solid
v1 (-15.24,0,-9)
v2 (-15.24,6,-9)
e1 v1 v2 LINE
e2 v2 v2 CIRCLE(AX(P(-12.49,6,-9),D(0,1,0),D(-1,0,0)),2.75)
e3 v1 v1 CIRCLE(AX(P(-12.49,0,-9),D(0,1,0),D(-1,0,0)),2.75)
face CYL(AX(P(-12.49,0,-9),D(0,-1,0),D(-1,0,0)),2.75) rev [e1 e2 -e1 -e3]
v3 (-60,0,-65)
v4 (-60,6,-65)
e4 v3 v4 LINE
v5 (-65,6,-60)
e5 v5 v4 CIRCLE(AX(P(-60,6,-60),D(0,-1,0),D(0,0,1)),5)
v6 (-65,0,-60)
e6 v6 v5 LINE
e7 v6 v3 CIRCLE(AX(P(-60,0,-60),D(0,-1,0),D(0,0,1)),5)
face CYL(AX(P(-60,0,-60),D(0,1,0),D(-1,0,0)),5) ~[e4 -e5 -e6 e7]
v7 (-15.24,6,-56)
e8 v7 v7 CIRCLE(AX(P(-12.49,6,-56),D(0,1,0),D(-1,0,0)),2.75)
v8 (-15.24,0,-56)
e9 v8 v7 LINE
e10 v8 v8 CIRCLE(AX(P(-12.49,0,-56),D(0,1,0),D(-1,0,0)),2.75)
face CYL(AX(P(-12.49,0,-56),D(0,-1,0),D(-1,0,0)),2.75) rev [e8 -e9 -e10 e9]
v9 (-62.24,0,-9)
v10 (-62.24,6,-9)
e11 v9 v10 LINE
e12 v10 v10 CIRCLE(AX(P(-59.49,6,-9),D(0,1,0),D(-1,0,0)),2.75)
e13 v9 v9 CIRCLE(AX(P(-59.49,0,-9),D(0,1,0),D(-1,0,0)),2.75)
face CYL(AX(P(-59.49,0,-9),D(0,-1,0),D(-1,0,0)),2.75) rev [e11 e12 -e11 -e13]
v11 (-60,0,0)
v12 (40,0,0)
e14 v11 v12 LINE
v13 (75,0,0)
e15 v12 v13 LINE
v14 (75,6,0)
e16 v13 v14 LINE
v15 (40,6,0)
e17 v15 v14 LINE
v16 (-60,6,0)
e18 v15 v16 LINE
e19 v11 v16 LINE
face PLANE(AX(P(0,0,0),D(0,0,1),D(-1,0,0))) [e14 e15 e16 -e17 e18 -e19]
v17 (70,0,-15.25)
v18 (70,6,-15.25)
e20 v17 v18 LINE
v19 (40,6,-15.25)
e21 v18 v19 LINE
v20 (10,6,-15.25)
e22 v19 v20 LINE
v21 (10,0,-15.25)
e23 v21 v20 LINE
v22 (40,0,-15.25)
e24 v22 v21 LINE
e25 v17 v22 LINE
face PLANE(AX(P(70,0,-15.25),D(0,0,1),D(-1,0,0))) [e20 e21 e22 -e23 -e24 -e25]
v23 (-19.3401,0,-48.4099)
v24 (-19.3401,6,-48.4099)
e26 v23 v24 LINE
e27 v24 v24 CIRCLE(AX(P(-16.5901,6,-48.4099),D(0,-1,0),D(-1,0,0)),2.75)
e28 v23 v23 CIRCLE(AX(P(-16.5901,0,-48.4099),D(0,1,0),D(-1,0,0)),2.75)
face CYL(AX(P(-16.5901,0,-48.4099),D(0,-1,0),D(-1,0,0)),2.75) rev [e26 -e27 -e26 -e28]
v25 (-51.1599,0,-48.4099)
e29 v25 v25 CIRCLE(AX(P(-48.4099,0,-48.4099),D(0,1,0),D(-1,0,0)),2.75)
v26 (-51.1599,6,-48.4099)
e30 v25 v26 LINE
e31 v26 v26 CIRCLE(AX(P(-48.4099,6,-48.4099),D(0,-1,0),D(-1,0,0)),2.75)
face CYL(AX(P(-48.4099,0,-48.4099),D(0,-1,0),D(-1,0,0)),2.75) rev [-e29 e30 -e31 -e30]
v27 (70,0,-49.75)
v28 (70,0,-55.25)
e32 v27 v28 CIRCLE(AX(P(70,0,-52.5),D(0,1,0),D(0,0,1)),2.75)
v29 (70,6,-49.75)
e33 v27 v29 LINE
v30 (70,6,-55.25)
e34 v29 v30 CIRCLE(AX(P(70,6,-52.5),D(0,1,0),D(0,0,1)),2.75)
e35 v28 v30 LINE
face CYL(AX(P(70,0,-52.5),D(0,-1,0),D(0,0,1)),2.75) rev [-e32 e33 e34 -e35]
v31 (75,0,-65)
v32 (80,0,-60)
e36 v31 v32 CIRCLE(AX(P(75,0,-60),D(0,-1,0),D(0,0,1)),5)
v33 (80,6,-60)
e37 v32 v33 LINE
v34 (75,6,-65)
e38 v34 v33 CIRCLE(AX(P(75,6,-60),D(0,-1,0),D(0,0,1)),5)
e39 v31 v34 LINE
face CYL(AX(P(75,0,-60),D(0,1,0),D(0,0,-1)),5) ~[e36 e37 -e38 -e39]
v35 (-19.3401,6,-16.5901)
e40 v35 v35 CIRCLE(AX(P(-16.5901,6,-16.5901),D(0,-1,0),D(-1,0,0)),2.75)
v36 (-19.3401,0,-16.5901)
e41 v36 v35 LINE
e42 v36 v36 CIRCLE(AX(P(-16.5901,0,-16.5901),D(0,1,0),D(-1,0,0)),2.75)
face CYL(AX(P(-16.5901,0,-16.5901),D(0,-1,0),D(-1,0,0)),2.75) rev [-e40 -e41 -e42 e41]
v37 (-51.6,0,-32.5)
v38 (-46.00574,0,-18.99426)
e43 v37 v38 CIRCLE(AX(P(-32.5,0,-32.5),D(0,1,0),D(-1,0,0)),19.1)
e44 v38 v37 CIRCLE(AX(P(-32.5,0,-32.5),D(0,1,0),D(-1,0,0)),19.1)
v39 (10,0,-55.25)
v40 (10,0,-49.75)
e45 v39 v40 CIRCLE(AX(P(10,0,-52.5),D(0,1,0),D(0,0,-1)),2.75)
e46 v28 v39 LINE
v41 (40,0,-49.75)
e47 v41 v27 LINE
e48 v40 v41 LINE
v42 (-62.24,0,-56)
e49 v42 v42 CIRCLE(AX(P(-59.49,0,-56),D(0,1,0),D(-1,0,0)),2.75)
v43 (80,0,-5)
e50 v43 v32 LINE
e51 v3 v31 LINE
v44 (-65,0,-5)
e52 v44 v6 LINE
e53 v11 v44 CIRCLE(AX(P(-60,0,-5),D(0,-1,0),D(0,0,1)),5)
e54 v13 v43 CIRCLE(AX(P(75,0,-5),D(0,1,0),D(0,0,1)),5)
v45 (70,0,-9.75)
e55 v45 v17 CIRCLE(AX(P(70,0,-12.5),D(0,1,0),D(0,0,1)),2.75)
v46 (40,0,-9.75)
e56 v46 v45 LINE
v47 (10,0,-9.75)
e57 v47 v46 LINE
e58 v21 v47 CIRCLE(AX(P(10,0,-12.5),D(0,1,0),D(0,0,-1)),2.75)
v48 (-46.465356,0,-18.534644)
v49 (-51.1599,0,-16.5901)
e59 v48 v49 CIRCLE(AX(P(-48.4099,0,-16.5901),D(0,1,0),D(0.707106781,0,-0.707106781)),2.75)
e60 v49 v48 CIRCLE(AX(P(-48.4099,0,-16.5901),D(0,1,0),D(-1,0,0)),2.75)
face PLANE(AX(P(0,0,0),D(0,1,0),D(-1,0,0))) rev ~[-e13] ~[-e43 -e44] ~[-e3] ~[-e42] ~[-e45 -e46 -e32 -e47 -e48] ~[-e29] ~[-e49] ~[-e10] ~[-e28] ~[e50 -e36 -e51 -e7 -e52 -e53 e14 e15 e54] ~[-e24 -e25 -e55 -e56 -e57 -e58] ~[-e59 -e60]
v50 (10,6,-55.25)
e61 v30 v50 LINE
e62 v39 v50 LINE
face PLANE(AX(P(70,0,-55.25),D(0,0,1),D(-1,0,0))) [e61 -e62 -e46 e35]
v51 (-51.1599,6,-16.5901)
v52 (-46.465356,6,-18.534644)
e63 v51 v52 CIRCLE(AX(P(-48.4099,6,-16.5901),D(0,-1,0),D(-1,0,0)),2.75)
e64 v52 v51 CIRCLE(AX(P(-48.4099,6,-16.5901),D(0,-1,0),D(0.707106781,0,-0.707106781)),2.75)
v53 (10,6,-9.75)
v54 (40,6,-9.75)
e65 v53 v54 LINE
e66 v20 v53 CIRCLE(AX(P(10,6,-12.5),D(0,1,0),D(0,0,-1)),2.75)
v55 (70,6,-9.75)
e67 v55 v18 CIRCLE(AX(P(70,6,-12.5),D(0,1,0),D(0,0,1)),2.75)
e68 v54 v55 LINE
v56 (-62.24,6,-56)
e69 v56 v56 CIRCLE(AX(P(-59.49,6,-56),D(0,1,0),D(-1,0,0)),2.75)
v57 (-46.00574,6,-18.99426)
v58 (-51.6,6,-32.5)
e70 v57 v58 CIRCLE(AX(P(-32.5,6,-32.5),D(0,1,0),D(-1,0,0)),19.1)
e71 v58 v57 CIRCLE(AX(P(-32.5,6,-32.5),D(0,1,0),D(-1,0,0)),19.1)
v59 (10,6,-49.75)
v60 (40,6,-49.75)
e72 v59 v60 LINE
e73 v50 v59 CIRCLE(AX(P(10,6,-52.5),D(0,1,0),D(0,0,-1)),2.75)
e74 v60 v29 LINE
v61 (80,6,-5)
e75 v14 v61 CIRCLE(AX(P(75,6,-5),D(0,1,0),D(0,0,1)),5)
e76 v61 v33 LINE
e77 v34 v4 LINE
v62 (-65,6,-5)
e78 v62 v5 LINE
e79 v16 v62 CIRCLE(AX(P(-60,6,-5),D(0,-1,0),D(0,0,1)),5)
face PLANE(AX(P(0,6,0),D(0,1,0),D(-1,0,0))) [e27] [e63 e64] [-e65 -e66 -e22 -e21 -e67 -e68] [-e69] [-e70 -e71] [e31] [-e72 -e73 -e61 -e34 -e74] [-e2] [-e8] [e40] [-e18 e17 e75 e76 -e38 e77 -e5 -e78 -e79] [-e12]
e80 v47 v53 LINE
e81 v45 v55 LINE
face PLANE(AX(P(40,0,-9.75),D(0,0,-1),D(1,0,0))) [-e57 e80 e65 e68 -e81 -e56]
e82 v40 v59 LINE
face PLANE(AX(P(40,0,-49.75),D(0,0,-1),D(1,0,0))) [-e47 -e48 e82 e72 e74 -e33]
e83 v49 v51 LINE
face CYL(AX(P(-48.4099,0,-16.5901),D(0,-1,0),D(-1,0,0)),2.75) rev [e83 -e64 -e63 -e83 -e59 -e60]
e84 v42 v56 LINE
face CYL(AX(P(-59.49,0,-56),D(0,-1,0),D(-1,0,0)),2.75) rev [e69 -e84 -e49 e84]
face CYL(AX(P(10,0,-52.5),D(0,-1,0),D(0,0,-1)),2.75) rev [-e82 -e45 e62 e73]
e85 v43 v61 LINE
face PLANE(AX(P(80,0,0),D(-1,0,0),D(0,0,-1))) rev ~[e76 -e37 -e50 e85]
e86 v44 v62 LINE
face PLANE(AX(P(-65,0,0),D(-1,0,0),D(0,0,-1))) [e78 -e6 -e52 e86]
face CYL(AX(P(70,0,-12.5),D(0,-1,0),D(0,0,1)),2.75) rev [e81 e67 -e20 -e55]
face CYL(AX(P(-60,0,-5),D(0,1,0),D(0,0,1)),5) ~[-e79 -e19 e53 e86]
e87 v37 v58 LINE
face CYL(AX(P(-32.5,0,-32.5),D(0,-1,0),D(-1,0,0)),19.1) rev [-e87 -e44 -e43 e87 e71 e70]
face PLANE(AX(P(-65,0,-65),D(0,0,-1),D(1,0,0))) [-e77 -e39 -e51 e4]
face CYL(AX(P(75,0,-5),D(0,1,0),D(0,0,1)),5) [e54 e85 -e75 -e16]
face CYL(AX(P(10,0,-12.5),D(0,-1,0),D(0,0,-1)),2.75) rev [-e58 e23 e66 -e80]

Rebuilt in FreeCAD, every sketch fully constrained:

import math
import FreeCAD as App
import Part
import Sketcher
from FreeCAD import Vector
Q = App.Units.Quantity


def edges_at(feature, points):
    """Names of the edges that pass closest to the given points."""
    edges = feature.Shape.Edges
    near = lambda p: min(range(len(edges)), key=lambda i: edges[i].distToShape(Part.Vertex(*p))[0])
    return sorted({f"Edge{near(p) + 1}" for p in points})

doc = App.newDocument("Part")
body = doc.addObject("PartDesign::Body", "Body")

# Sketch on XZ plane
sketch1 = doc.addObject("Sketcher::SketchObject", "Sketch")
body.addObject(sketch1)
sketch1.AttachmentSupport = (doc.XZ_Plane, [""])
sketch1.MapMode = "FlatFace"
sketch1.addGeometry([
    Part.LineSegment(Vector(-65, 0, 0), Vector(40, 0, 0)),  # 0
    Part.LineSegment(Vector(40, 0, 0), Vector(80, 0, 0)),  # 1
    Part.LineSegment(Vector(80, 0, 0), Vector(80, -65, 0)),  # 2
    Part.LineSegment(Vector(80, -65, 0), Vector(-65, -65, 0)),  # 3
    Part.LineSegment(Vector(-65, -65, 0), Vector(-65, 0, 0)),  # 4
    Part.Circle(Vector(-12.5, -56, 0), Vector(0, 0, 1), 2.8),  # 5
    Part.Circle(Vector(-59.5, -56, 0), Vector(0, 0, 1), 2.8),  # 6
    Part.Circle(Vector(-48.4, -16.6, 0), Vector(0, 0, 1), 2.8),  # 7
    Part.Circle(Vector(-16.6, -16.6, 0), Vector(0, 0, 1), 2.8),  # 8
    Part.Circle(Vector(-16.6, -48.4, 0), Vector(0, 0, 1), 2.8),  # 9
    Part.Circle(Vector(-48.4, -48.4, 0), Vector(0, 0, 1), 2.8),  # 10
    Part.Circle(Vector(-12.5, -9, 0), Vector(0, 0, 1), 2.8),  # 11
    Part.Circle(Vector(-59.5, -9, 0), Vector(0, 0, 1), 2.8),  # 12
    Part.LineSegment(Vector(70, -49.8, 0), Vector(40, -49.8, 0)),  # 13
    Part.LineSegment(Vector(40, -49.8, 0), Vector(10, -49.8, 0)),  # 14
    Part.ArcOfCircle(Part.Circle(Vector(10, -52.5, 0), Vector(0, 0, 1), 2.8), math.radians(90), math.radians(270)),  # 15
    Part.LineSegment(Vector(10, -55.2, 0), Vector(70, -55.2, 0)),  # 16
    Part.ArcOfCircle(Part.Circle(Vector(70, -52.5, 0), Vector(0, 0, 1), 2.8), math.radians(-90), math.radians(90)),  # 17
    Part.LineSegment(Vector(70, -9.8, 0), Vector(40, -9.8, 0)),  # 18
    Part.LineSegment(Vector(40, -9.8, 0), Vector(10, -9.8, 0)),  # 19
    Part.ArcOfCircle(Part.Circle(Vector(10, -12.5, 0), Vector(0, 0, 1), 2.8), math.radians(90), math.radians(270)),  # 20
    Part.LineSegment(Vector(10, -15.2, 0), Vector(40, -15.2, 0)),  # 21
    Part.LineSegment(Vector(40, -15.2, 0), Vector(70, -15.2, 0)),  # 22
    Part.ArcOfCircle(Part.Circle(Vector(70, -12.5, 0), Vector(0, 0, 1), 2.8), math.radians(-90), math.radians(90)),  # 23
    Part.Circle(Vector(-32.5, -32.5, 0), Vector(0, 0, 1), 19.1),  # 24
], False)
sketch1.addConstraint([
    Sketcher.Constraint("Coincident", 0, 2, 1, 1),
    Sketcher.Constraint("Coincident", 1, 2, 2, 1),
    Sketcher.Constraint("Coincident", 2, 2, 3, 1),
    Sketcher.Constraint("Coincident", 3, 2, 4, 1),
    Sketcher.Constraint("Coincident", 4, 2, 0, 1),
    Sketcher.Constraint("Coincident", 13, 2, 14, 1),
    Sketcher.Constraint("Tangent", 14, 2, 15, 1),
    Sketcher.Constraint("Tangent", 15, 2, 16, 1),
    Sketcher.Constraint("Tangent", 16, 2, 17, 1),
    Sketcher.Constraint("Tangent", 17, 2, 13, 1),
    Sketcher.Constraint("Coincident", 18, 2, 19, 1),
    Sketcher.Constraint("Tangent", 19, 2, 20, 1),
    Sketcher.Constraint("Tangent", 20, 2, 21, 1),
    Sketcher.Constraint("Coincident", 21, 2, 22, 1),
    Sketcher.Constraint("Tangent", 22, 2, 23, 1),
    Sketcher.Constraint("Tangent", 23, 2, 18, 1),
    Sketcher.Constraint("Horizontal", 0),
    Sketcher.Constraint("Horizontal", 1),
    Sketcher.Constraint("Vertical", 2),
    Sketcher.Constraint("Horizontal", 3),
    Sketcher.Constraint("Vertical", 4),
    Sketcher.Constraint("Horizontal", 13),
    Sketcher.Constraint("Horizontal", 14),
    Sketcher.Constraint("Horizontal", 16),
    Sketcher.Constraint("Horizontal", 18),
    Sketcher.Constraint("Horizontal", 19),
    Sketcher.Constraint("Horizontal", 21),
    Sketcher.Constraint("Horizontal", 22),
    Sketcher.Constraint("Equal", 5, 6),
    Sketcher.Constraint("Equal", 6, 7),
    Sketcher.Constraint("Equal", 7, 8),
    Sketcher.Constraint("Equal", 8, 9),
    Sketcher.Constraint("Equal", 9, 10),
    Sketcher.Constraint("Equal", 10, 11),
    Sketcher.Constraint("Equal", 11, 12),
    Sketcher.Constraint("Equal", 12, 15),
    Sketcher.Constraint("Equal", 17, 20),
    Sketcher.Constraint("PointOnObject", 0, 2, -1),
    Sketcher.Constraint("Horizontal", 5, 3, 6, 3),
    Sketcher.Constraint("Horizontal", 7, 3, 8, 3),
    Sketcher.Constraint("Horizontal", 9, 3, 10, 3),
    Sketcher.Constraint("Horizontal", 11, 3, 12, 3),
    Sketcher.Constraint("Vertical", 8, 3, 9, 3),
    Sketcher.Constraint("Vertical", 7, 3, 10, 3),
    Sketcher.Constraint("Vertical", 5, 3, 11, 3),
    Sketcher.Constraint("Vertical", 6, 3, 12, 3),
    Sketcher.Constraint("Vertical", 15, 3, 20, 3),
    Sketcher.Constraint("Vertical", 17, 3, 23, 3),
    Sketcher.Constraint("Vertical", 0, 2, 13, 2),
    Sketcher.Constraint("Vertical", 13, 2, 18, 2),
    Sketcher.Constraint("Vertical", 18, 2, 21, 2),
    Sketcher.Constraint("Equal", 13, 14),
    Sketcher.Constraint("Diameter", 5, Q("5.5 mm")),
    Sketcher.Constraint("Diameter", 24, Q("38.2 mm")),
    Sketcher.Constraint("DistanceX", 1, 1, 1, 2, Q("40 mm")),
    Sketcher.Constraint("DistanceX", 13, 2, 13, 1, Q("30 mm")),
    Sketcher.Constraint("DistanceY", 2, 2, 2, 1, Q("65 mm")),
    Sketcher.Constraint("DistanceY", 11, 3, -1, 1, Q("9 mm")),
    Sketcher.Constraint("DistanceX", -1, 1, 0, 2, Q("40 mm")),
    Sketcher.Constraint("DistanceX", 3, 2, -1, 1, Q("65 mm")),
    Sketcher.Constraint("DistanceX", 6, 3, 5, 3, Q("47 mm")),
    Sketcher.Constraint("DistanceY", 5, 3, 11, 3, Q("47 mm")),
    Sketcher.Constraint("DistanceY", 15, 3, 20, 3, Q("40 mm")),
    Sketcher.Constraint("DistanceY", 20, 3, -1, 1, Q("12.5 mm")),
    Sketcher.Constraint("DistanceX", 24, 3, -1, 1, Q("32.5 mm")),
    Sketcher.Constraint("DistanceY", 24, 3, -1, 1, Q("32.5 mm")),
    Sketcher.Constraint("DistanceX", 3, 2, 6, 3, Q("5.51 mm")),
    Sketcher.Constraint("DistanceX", 8, 3, 5, 3, Q("4.1 mm")),
    Sketcher.Constraint("DistanceX", 7, 3, -1, 1, Q("48.41 mm")),
    Sketcher.Constraint("DistanceY", 7, 3, -1, 1, Q("16.59 mm")),
    Sketcher.Constraint("DistanceY", 9, 3, -1, 1, Q("48.41 mm")),
])
pad1 = doc.addObject("PartDesign::Pad", "Pad")
body.addObject(pad1)
pad1.Profile = sketch1
pad1.Length = 6
pad1.Reversed = True
doc.recompute()

fillet = doc.addObject("PartDesign::Fillet", "Fillet")
body.addObject(fillet)
fillet.Base = (pad1, edges_at(pad1, [
    (-65, 3, 0),
    (-65, 3, -65),
    (80, 3, -65),
    (80, 3, 0),
]))
fillet.Radius = 5

doc.recompute()
